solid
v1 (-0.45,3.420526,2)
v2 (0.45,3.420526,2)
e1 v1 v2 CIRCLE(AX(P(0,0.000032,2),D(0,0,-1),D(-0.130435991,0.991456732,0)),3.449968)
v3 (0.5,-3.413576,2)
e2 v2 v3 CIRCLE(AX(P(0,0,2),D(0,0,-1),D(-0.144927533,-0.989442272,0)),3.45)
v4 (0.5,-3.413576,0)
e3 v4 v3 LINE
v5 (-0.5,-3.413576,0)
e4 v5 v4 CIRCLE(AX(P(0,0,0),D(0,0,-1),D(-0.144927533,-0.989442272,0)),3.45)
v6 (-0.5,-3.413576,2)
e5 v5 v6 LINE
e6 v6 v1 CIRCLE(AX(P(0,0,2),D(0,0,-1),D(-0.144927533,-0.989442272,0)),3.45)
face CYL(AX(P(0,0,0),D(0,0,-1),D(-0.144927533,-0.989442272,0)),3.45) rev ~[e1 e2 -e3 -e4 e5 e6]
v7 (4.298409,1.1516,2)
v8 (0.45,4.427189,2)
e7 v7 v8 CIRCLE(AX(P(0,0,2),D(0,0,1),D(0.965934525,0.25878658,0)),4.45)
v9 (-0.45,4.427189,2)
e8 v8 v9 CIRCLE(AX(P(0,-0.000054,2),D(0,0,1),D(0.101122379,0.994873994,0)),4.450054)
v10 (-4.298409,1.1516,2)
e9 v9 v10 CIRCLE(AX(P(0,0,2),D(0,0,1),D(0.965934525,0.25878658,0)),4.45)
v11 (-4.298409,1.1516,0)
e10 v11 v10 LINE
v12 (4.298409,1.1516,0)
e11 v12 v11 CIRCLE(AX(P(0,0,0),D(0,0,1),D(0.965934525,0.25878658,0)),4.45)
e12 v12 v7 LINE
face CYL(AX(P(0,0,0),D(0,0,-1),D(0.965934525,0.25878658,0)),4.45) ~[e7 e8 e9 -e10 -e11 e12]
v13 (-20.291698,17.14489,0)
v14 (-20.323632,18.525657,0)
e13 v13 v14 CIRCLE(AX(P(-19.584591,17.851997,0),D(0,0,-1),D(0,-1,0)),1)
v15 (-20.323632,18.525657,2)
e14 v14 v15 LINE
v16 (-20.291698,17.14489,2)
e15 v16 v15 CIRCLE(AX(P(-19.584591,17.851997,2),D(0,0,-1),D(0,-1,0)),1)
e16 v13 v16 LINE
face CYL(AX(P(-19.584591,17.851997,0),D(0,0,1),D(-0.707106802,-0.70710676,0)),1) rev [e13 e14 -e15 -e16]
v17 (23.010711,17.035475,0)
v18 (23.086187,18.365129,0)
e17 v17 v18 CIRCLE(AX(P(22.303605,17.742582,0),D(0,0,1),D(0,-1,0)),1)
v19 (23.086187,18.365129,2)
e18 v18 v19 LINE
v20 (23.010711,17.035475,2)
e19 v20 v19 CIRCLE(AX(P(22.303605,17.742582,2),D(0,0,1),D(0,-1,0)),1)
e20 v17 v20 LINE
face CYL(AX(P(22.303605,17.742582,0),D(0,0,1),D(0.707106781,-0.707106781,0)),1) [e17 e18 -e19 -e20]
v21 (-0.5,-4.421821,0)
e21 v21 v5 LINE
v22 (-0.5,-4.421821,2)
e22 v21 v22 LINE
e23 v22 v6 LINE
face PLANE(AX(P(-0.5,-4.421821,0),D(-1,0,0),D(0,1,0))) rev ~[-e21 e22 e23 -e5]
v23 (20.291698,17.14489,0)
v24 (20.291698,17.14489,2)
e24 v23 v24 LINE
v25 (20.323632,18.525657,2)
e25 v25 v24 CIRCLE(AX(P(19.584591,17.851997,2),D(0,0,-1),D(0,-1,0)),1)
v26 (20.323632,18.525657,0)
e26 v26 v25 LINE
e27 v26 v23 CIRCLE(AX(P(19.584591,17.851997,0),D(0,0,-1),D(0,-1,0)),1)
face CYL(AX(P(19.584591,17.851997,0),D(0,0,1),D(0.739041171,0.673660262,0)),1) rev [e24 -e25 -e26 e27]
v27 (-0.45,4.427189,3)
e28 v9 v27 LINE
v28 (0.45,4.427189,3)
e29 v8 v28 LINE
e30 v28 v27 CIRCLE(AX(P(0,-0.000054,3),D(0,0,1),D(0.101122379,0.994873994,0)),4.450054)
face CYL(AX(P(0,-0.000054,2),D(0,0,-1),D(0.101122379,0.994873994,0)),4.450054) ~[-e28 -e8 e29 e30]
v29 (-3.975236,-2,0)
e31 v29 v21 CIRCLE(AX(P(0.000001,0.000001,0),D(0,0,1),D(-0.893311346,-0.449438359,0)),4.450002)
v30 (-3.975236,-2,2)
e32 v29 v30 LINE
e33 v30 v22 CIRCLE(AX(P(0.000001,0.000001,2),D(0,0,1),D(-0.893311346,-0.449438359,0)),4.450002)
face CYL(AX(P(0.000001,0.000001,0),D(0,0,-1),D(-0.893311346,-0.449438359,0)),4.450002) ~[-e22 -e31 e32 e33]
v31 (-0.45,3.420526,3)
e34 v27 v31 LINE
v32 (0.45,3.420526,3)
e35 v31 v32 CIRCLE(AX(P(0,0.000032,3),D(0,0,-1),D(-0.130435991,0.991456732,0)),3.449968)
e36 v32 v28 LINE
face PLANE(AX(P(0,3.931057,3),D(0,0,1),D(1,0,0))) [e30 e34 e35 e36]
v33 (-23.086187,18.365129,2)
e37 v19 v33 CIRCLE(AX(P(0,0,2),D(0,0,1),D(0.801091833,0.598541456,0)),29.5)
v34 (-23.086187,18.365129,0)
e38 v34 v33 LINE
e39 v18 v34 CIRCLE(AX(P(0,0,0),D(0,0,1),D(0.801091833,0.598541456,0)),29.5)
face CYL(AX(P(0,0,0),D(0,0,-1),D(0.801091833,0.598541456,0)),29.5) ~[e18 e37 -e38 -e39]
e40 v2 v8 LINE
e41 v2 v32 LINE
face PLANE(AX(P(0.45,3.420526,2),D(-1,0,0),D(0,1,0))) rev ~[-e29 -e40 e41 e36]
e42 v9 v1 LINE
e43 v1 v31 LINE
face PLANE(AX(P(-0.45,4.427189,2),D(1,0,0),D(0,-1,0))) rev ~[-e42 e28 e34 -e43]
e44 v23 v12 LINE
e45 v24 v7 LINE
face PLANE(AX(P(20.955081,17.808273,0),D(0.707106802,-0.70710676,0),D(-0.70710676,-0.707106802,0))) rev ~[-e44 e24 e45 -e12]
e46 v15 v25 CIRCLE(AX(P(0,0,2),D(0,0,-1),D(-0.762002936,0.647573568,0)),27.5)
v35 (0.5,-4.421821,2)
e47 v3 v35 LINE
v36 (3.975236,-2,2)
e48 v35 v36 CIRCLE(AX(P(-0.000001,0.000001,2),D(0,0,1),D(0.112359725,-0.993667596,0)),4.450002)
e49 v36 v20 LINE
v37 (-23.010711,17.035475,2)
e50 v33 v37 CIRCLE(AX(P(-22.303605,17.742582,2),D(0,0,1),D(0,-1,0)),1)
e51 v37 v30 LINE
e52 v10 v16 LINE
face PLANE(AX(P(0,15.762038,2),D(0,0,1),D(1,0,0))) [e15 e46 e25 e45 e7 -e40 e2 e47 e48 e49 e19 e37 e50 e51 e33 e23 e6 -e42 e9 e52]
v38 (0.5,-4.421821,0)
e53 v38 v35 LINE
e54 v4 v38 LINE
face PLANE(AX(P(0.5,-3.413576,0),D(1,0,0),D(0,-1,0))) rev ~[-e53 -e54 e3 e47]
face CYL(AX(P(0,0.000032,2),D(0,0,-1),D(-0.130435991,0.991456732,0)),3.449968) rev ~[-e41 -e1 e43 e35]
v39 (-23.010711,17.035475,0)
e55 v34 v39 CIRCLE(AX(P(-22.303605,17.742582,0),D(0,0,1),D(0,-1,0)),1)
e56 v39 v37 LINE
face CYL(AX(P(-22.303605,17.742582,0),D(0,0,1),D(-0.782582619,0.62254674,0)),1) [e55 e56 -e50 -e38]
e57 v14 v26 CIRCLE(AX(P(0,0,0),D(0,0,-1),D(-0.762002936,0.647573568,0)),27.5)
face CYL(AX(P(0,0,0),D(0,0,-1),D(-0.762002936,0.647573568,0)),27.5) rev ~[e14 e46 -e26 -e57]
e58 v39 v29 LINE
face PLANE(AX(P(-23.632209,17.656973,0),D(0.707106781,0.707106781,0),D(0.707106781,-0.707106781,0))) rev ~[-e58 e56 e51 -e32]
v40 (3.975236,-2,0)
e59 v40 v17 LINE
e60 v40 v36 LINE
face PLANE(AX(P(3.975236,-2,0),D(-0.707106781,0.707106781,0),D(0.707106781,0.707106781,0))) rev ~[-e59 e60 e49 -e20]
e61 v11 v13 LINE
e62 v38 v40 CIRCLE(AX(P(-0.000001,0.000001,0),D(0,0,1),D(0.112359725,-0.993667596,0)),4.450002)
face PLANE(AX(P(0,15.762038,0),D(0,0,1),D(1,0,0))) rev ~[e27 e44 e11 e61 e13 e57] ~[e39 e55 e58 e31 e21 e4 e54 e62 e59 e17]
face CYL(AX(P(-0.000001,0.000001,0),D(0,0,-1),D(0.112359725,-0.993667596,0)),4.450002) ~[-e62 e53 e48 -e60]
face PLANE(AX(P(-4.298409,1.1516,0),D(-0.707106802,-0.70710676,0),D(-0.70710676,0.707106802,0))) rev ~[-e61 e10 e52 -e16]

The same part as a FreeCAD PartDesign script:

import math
import FreeCAD as App
import Part
import Sketcher

V = App.Vector


def edges_at(feature, points):
    """Names of the edges that pass closest to the given points."""
    edges = feature.Shape.Edges
    near = lambda p: min(range(len(edges)), key=lambda i: edges[i].distToShape(Part.Vertex(*p))[0])
    return sorted({f"Edge{near(p) + 1}" for p in points})

doc = App.newDocument("Part")
body = doc.addObject("PartDesign::Body", "Body")

# Sketch on XY plane
sketch1 = body.newObject("Sketcher::SketchObject", "Sketch")
sketch1.AttachmentSupport = (doc.getObject("XY_Plane"), [""])
sketch1.MapMode = "FlatFace"
sketch1.addGeometry([
    Part.LineSegment(V(4, -2, 0), V(23.6, 17.7, 0)),  # 0
    Part.ArcOfCircle(Part.Circle(V(0, 0, 0), V(0, 0, 1), 29.5), math.radians(37), math.radians(143)),  # 1
    Part.LineSegment(V(-23.6, 17.7, 0), V(-4, -2, 0)),  # 2
    Part.ArcOfCircle(Part.Circle(V(0, 0, 0), V(0, 0, 1), 4.5), math.radians(-153), math.radians(-96)),  # 3
    Part.LineSegment(V(-0.5, -4.4, 0), V(-0.5, -3.4, 0)),  # 4
    Part.ArcOfCircle(Part.Circle(V(0, 0, 0), V(0, 0, 1), 3.5), math.radians(-82), math.radians(262)),  # 5
    Part.LineSegment(V(0.5, -3.4, 0), V(0.5, -4.4, 0)),  # 6
    Part.ArcOfCircle(Part.Circle(V(0, 0, 0), V(0, 0, 1), 4.5), math.radians(-84), math.radians(-27)),  # 7
    Part.LineSegment(V(-4.3, 1.2, 0), V(-21, 17.8, 0)),  # 8
    Part.ArcOfCircle(Part.Circle(V(0, 0, 0), V(0, 0, 1), 27.5), math.radians(40), math.radians(140)),  # 9
    Part.LineSegment(V(21, 17.8, 0), V(4.3, 1.2, 0)),  # 10
    Part.ArcOfCircle(Part.Circle(V(0, 0, 0), V(0, 0, 1), 4.5), math.radians(15), math.radians(165)),  # 11
], False)
sketch1.addConstraint([
    Sketcher.Constraint("Coincident", 0, 2, 1, 1),
    Sketcher.Constraint("Coincident", 1, 2, 2, 1),
    Sketcher.Constraint("Coincident", 2, 2, 3, 1),
    Sketcher.Constraint("Coincident", 3, 2, 4, 1),
    Sketcher.Constraint("Coincident", 4, 2, 5, 2),
    Sketcher.Constraint("Coincident", 5, 1, 6, 1),
    Sketcher.Constraint("Coincident", 6, 2, 7, 1),
    Sketcher.Constraint("Coincident", 7, 2, 0, 1),
    Sketcher.Constraint("Coincident", 8, 2, 9, 2),
    Sketcher.Constraint("Coincident", 9, 1, 10, 1),
    Sketcher.Constraint("Coincident", 10, 2, 11, 1),
    Sketcher.Constraint("Coincident", 11, 2, 8, 1),
    Sketcher.Constraint("Vertical", 4),
    Sketcher.Constraint("Vertical", 6),
    Sketcher.Constraint("Coincident", 1, 3, -1, 1),
    Sketcher.Constraint("Coincident", 3, 3, -1, 1),
    Sketcher.Constraint("Coincident", 5, 3, -1, 1),
    Sketcher.Constraint("Coincident", 7, 3, -1, 1),
    Sketcher.Constraint("Coincident", 9, 3, -1, 1),
    Sketcher.Constraint("Coincident", 11, 3, -1, 1),
    Sketcher.Constraint("Equal", 3, 7),
    Sketcher.Constraint("Equal", 7, 11),
    Sketcher.Constraint("Perpendicular", 0, 2),
    Sketcher.Constraint("Parallel", 2, 8),
    Sketcher.Constraint("Perpendicular", 8, 10),
    Sketcher.Constraint("Horizontal", 0, 2, 1, 2),
    Sketcher.Constraint("Horizontal", 4, 2, 5, 1),
    Sketcher.Constraint("Horizontal", 2, 2, 7, 2),
    Sketcher.Constraint("Horizontal", 8, 2, 9, 1),
    Sketcher.Constraint("Radius", 1, 29.5),
    Sketcher.Constraint("Radius", 9, 27.5),
    Sketcher.Constraint("Radius", 3, 4.450002),
    Sketcher.Constraint("Radius", 5, 3.45),
    Sketcher.Constraint("DistanceY", 2, 2, -1, 1, 2.0),
    Sketcher.Constraint("DistanceX", 4, 2, 5, 1, 1.0),
    Sketcher.Constraint("DistanceY", -1, 1, 10, 2, 1.1516),
])
pad1 = body.newObject("PartDesign::Pad", "Pad")
pad1.Profile = sketch1
pad1.Length = 2

# Sketch on XY plane
sketch2 = body.newObject("Sketcher::SketchObject", "Sketch001")
sketch2.AttachmentSupport = (doc.getObject("XY_Plane"), [""])
sketch2.MapMode = "FlatFace"
sketch2.AttachmentOffset = App.Placement(V(0, 0, 2), App.Rotation())
sketch2.addGeometry([
    Part.LineSegment(V(0.5, 3.4, 0), V(0.5, 4.4, 0)),
    Part.ArcOfCircle(Part.Circle(V(0, 0, 0), V(0, 0, 1), 4.5), math.radians(84.2), math.radians(95.8)),
    Part.LineSegment(V(-0.5, 4.4, 0), V(-0.5, 3.4, 0)),
    Part.ArcOfCircle(Part.Circle(V(0, 0, 0), V(0, 0, 1), 3.4), math.radians(82.51), math.radians(97.49)),
], False)
sketch2.addConstraint([
    Sketcher.Constraint("Coincident", 0, 2, 1, 1),
    Sketcher.Constraint("Coincident", 1, 2, 2, 1),
    Sketcher.Constraint("Coincident", 2, 2, 3, 2),
    Sketcher.Constraint("Coincident", 3, 1, 0, 1),
    Sketcher.Constraint("Vertical", 0),
    Sketcher.Constraint("Vertical", 2),
    Sketcher.Constraint("Symmetric", 0, 2, 1, 2, -2),
    Sketcher.Constraint("PointOnObject", 3, 3, -2),
    Sketcher.Constraint("DistanceX", 1, 2, 0, 2, 0.9),
    Sketcher.Constraint("Radius", 3, 3.449968),
    Sketcher.Constraint("Radius", 1, 4.450054),
    Sketcher.Constraint("DistanceY", 0, 1, 0, 2, 1.006663),
    Sketcher.Constraint("DistanceY", -1, 1, 0, 2, 4.427189),
])
pad2 = body.newObject("PartDesign::Pad", "Pad001")
pad2.Profile = sketch2
pad2.Length = 1
doc.recompute()

fillet = body.newObject("PartDesign::Fillet", "Fillet")
fillet.Base = (pad2, edges_at(pad2, [
    (-23.632, 17.657, 1),
    (-20.955, 17.808, 1),
    (23.632, 17.657, 1),
    (20.955, 17.808, 1),
]))
fillet.Radius = 1

doc.recompute()
